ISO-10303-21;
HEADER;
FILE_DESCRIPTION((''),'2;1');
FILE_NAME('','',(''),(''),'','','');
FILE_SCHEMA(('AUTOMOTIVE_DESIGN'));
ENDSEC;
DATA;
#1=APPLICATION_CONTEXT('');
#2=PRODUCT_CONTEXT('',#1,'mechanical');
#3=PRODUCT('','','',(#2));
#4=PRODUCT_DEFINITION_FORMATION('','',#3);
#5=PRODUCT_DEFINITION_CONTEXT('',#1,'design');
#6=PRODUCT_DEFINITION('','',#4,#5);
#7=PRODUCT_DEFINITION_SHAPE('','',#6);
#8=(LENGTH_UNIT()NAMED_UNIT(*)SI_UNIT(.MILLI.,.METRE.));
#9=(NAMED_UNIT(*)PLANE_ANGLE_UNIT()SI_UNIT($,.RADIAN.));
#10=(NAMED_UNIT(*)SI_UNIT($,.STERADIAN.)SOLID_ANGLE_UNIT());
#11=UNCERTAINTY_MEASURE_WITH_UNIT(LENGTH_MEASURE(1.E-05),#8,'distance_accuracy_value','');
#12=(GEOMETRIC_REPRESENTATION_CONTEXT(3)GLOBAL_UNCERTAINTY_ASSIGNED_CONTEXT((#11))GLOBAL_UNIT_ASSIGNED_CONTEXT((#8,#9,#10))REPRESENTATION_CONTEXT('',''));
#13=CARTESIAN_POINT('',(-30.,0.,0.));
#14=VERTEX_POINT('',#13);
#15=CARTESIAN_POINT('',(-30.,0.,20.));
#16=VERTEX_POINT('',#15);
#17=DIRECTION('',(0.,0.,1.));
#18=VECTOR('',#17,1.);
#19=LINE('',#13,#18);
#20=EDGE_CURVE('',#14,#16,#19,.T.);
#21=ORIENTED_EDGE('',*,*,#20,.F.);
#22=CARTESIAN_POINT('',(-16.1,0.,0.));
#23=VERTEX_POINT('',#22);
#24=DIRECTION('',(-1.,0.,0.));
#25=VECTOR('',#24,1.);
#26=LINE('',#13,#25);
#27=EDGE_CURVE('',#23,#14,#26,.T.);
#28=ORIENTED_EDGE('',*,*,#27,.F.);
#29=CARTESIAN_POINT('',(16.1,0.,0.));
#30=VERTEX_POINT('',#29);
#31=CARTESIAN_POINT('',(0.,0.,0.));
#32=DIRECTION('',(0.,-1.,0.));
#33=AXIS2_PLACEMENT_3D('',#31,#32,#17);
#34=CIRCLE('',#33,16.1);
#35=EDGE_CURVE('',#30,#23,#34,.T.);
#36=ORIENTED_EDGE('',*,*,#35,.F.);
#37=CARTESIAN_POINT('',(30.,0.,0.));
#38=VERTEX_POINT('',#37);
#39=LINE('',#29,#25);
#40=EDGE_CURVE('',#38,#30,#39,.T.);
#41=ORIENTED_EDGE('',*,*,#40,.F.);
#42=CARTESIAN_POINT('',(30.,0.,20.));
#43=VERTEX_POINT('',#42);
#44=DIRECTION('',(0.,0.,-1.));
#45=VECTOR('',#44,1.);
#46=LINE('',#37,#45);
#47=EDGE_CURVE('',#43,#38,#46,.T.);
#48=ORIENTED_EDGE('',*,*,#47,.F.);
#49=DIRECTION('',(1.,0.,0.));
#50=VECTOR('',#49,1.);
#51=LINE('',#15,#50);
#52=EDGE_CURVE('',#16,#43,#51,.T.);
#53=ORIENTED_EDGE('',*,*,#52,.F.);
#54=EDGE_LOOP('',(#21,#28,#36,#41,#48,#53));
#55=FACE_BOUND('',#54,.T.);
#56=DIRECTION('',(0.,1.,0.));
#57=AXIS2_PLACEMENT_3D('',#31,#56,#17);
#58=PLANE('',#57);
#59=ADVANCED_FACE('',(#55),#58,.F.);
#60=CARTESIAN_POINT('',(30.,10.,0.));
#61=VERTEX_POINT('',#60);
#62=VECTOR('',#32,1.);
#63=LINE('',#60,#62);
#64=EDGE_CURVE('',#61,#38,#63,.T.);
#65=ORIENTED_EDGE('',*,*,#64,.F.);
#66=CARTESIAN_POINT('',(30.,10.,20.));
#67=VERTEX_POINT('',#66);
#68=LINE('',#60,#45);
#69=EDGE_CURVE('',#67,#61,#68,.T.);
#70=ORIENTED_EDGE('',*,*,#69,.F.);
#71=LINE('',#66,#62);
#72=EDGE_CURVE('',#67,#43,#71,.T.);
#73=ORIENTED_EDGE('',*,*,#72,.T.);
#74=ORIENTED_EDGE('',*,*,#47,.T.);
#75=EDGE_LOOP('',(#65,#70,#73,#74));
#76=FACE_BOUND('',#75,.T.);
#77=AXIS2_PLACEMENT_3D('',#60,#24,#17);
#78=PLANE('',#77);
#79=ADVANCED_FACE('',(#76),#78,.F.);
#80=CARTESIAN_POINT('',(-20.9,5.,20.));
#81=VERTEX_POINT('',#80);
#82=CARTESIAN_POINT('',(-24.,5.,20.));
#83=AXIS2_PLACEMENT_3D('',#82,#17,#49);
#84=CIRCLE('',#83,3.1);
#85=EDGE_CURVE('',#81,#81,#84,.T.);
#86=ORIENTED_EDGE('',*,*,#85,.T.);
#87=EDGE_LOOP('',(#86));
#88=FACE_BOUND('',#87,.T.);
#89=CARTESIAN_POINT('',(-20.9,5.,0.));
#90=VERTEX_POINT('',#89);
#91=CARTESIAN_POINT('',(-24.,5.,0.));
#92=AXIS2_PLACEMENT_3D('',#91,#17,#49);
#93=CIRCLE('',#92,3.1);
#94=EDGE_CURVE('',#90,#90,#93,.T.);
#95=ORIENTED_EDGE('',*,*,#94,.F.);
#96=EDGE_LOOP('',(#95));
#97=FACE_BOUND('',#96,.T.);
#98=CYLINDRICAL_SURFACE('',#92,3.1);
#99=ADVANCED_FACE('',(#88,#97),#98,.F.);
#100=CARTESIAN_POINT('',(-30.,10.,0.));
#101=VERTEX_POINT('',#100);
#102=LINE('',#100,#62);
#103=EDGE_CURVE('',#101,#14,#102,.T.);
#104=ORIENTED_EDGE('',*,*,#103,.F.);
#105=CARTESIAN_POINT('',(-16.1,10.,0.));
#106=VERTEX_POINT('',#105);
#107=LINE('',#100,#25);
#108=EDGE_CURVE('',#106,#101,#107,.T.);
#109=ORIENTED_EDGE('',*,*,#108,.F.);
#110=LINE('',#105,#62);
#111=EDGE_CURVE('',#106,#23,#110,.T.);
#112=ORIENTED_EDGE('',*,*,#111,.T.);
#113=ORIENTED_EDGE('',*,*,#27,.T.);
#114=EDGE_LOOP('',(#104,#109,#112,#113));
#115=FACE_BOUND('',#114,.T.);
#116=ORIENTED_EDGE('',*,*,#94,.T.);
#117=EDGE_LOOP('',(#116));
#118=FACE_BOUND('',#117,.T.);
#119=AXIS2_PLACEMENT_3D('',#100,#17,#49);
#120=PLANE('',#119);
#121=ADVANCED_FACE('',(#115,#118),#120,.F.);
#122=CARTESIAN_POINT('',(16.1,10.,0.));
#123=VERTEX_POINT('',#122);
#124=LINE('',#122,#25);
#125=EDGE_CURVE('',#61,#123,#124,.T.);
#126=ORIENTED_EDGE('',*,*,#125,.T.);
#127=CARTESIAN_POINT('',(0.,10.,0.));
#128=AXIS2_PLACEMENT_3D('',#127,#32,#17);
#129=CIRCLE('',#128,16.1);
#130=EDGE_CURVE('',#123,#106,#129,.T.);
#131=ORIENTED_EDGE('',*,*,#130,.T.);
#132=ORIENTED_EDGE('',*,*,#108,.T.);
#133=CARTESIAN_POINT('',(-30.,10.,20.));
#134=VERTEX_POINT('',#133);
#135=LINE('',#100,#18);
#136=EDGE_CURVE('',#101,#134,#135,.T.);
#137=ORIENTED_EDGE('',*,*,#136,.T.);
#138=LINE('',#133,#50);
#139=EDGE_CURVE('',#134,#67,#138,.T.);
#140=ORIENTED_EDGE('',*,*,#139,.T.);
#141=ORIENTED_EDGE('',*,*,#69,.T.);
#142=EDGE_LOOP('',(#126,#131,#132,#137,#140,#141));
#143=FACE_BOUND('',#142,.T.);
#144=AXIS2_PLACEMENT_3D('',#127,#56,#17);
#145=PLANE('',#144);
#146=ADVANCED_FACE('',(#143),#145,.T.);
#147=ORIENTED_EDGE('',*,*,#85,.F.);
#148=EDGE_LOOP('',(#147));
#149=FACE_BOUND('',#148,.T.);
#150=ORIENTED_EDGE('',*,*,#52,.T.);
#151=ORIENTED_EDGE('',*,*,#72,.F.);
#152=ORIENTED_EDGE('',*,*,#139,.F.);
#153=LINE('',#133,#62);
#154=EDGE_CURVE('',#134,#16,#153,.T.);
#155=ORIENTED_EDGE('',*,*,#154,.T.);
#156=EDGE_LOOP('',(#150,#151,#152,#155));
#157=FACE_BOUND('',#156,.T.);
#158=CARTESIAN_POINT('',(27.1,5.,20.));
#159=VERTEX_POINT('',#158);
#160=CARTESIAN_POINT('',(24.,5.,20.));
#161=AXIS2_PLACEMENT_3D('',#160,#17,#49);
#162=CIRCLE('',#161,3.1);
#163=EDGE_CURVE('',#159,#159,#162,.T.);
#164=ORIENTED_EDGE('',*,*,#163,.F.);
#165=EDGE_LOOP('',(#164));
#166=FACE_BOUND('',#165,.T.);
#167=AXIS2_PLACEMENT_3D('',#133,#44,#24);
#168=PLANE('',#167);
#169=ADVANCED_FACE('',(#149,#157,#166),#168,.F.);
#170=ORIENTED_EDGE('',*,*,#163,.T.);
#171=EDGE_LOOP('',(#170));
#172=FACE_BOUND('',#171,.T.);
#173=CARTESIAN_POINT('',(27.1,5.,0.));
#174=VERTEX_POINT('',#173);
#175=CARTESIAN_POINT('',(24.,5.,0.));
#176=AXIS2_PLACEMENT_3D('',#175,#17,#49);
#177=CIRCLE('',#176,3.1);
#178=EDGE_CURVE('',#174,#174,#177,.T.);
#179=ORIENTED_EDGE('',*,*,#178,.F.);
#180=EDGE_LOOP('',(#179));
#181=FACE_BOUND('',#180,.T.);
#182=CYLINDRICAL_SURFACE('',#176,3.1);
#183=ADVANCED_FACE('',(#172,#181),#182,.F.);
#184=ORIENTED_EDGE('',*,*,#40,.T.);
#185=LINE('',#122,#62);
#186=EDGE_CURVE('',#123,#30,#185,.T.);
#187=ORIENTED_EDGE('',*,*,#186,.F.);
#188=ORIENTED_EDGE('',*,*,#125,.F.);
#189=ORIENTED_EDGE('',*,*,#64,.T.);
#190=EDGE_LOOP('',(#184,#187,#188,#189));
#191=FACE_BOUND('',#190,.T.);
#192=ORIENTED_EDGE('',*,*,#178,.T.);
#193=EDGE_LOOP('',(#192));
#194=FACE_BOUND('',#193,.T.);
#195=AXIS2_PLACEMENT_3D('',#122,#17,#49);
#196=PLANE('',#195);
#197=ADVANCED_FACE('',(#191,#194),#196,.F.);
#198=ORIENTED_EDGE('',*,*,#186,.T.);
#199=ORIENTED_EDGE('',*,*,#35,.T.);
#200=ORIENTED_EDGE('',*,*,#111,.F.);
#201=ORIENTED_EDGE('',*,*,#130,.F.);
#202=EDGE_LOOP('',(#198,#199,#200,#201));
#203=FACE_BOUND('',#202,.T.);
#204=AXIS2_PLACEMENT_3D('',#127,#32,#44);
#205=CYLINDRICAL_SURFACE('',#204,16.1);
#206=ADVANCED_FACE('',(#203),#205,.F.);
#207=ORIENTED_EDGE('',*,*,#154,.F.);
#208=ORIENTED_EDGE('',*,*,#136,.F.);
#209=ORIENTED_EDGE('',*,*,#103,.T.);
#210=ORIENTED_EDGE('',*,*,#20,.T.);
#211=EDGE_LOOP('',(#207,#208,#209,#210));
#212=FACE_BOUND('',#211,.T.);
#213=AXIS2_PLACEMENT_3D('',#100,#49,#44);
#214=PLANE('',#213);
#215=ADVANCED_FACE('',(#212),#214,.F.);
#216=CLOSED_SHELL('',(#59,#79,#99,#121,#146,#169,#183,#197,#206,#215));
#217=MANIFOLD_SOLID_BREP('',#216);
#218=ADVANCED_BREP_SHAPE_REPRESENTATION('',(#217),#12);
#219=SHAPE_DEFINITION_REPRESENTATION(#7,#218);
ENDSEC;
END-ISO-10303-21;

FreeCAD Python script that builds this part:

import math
import FreeCAD as App
import Part
import Sketcher

V = App.Vector
Q = App.Units.Quantity

doc = App.newDocument("Part")
body = doc.addObject("PartDesign::Body", "Body")

sketch1 = doc.addObject("Sketcher::SketchObject", "Sketch")
body.addObject(sketch1)
sketch1.AttachmentSupport = (doc.XZ_Plane, [""])
sketch1.MapMode = "FlatFace"
sketch1.addGeometry([
    Part.LineSegment(V(30, 0, 0), V(16, 0, 0)),
    Part.ArcOfCircle(Part.Circle(V(0, 0, 0), V(0, 0, 1), 16), math.radians(0), math.radians(180)),
    Part.LineSegment(V(-16, 0, 0), V(-30, 0, 0)),
    Part.LineSegment(V(-30, 0, 0), V(-30, 20, 0)),
    Part.LineSegment(V(-30, 20, 0), V(30, 20, 0)),
    Part.LineSegment(V(30, 20, 0), V(30, 0, 0)),
], False)
sketch1.addConstraint([
    Sketcher.Constraint("Coincident", 0, 2, 1, 1),
    Sketcher.Constraint("Coincident", 1, 2, 2, 1),
    Sketcher.Constraint("Coincident", 2, 2, 3, 1),
    Sketcher.Constraint("Coincident", 3, 2, 4, 1),
    Sketcher.Constraint("Coincident", 4, 2, 5, 1),
    Sketcher.Constraint("Coincident", 5, 2, 0, 1),
    Sketcher.Constraint("Horizontal", 0),
    Sketcher.Constraint("Horizontal", 2),
    Sketcher.Constraint("Vertical", 3),
    Sketcher.Constraint("Horizontal", 4),
    Sketcher.Constraint("Vertical", 5),
    Sketcher.Constraint("Coincident", 1, 3, -1, 1),
    Sketcher.Constraint("Symmetric", 2, 2, 5, 2, -1, 1),
    Sketcher.Constraint("PointOnObject", 0, 2, -1),
    Sketcher.Constraint("Radius", 1, Q("16.1 mm")),
    Sketcher.Constraint("DistanceX", 4, 1, 4, 2, Q("60 mm")),
    Sketcher.Constraint("DistanceY", 3, 1, 3, 2, Q("20 mm")),
])
pad1 = doc.addObject("PartDesign::Pad", "Pad")
body.addObject(pad1)
pad1.Profile = sketch1
pad1.Length = 10
pad1.Reversed = True

sketch2 = doc.addObject("Sketcher::SketchObject", "Sketch001")
body.addObject(sketch2)
sketch2.AttachmentSupport = (doc.XY_Plane, [""])
sketch2.MapMode = "FlatFace"
sketch2.AttachmentOffset = App.Placement(V(0, 0, 20), App.Rotation())
sketch2.addGeometry([
    Part.Circle(V(-24, 5, 0), V(0, 0, 1), 3.1),
    Part.Circle(V(24, 5, 0), V(0, 0, 1), 3.1),
], False)
sketch2.addConstraint([
    Sketcher.Constraint("Equal", 0, 1),
    Sketcher.Constraint("Symmetric", 0, 3, 1, 3, -2),
    Sketcher.Constraint("Diameter", 0, Q("6.2 mm")),
    Sketcher.Constraint("DistanceX", 0, 3, -1, 1, Q("24 mm")),
    Sketcher.Constraint("DistanceY", -1, 1, 0, 3, Q("5 mm")),
])
pocket1 = doc.addObject("PartDesign::Pocket", "Pocket")
body.addObject(pocket1)
pocket1.Profile = sketch2
pocket1.Type = "ThroughAll"

doc.recompute()
